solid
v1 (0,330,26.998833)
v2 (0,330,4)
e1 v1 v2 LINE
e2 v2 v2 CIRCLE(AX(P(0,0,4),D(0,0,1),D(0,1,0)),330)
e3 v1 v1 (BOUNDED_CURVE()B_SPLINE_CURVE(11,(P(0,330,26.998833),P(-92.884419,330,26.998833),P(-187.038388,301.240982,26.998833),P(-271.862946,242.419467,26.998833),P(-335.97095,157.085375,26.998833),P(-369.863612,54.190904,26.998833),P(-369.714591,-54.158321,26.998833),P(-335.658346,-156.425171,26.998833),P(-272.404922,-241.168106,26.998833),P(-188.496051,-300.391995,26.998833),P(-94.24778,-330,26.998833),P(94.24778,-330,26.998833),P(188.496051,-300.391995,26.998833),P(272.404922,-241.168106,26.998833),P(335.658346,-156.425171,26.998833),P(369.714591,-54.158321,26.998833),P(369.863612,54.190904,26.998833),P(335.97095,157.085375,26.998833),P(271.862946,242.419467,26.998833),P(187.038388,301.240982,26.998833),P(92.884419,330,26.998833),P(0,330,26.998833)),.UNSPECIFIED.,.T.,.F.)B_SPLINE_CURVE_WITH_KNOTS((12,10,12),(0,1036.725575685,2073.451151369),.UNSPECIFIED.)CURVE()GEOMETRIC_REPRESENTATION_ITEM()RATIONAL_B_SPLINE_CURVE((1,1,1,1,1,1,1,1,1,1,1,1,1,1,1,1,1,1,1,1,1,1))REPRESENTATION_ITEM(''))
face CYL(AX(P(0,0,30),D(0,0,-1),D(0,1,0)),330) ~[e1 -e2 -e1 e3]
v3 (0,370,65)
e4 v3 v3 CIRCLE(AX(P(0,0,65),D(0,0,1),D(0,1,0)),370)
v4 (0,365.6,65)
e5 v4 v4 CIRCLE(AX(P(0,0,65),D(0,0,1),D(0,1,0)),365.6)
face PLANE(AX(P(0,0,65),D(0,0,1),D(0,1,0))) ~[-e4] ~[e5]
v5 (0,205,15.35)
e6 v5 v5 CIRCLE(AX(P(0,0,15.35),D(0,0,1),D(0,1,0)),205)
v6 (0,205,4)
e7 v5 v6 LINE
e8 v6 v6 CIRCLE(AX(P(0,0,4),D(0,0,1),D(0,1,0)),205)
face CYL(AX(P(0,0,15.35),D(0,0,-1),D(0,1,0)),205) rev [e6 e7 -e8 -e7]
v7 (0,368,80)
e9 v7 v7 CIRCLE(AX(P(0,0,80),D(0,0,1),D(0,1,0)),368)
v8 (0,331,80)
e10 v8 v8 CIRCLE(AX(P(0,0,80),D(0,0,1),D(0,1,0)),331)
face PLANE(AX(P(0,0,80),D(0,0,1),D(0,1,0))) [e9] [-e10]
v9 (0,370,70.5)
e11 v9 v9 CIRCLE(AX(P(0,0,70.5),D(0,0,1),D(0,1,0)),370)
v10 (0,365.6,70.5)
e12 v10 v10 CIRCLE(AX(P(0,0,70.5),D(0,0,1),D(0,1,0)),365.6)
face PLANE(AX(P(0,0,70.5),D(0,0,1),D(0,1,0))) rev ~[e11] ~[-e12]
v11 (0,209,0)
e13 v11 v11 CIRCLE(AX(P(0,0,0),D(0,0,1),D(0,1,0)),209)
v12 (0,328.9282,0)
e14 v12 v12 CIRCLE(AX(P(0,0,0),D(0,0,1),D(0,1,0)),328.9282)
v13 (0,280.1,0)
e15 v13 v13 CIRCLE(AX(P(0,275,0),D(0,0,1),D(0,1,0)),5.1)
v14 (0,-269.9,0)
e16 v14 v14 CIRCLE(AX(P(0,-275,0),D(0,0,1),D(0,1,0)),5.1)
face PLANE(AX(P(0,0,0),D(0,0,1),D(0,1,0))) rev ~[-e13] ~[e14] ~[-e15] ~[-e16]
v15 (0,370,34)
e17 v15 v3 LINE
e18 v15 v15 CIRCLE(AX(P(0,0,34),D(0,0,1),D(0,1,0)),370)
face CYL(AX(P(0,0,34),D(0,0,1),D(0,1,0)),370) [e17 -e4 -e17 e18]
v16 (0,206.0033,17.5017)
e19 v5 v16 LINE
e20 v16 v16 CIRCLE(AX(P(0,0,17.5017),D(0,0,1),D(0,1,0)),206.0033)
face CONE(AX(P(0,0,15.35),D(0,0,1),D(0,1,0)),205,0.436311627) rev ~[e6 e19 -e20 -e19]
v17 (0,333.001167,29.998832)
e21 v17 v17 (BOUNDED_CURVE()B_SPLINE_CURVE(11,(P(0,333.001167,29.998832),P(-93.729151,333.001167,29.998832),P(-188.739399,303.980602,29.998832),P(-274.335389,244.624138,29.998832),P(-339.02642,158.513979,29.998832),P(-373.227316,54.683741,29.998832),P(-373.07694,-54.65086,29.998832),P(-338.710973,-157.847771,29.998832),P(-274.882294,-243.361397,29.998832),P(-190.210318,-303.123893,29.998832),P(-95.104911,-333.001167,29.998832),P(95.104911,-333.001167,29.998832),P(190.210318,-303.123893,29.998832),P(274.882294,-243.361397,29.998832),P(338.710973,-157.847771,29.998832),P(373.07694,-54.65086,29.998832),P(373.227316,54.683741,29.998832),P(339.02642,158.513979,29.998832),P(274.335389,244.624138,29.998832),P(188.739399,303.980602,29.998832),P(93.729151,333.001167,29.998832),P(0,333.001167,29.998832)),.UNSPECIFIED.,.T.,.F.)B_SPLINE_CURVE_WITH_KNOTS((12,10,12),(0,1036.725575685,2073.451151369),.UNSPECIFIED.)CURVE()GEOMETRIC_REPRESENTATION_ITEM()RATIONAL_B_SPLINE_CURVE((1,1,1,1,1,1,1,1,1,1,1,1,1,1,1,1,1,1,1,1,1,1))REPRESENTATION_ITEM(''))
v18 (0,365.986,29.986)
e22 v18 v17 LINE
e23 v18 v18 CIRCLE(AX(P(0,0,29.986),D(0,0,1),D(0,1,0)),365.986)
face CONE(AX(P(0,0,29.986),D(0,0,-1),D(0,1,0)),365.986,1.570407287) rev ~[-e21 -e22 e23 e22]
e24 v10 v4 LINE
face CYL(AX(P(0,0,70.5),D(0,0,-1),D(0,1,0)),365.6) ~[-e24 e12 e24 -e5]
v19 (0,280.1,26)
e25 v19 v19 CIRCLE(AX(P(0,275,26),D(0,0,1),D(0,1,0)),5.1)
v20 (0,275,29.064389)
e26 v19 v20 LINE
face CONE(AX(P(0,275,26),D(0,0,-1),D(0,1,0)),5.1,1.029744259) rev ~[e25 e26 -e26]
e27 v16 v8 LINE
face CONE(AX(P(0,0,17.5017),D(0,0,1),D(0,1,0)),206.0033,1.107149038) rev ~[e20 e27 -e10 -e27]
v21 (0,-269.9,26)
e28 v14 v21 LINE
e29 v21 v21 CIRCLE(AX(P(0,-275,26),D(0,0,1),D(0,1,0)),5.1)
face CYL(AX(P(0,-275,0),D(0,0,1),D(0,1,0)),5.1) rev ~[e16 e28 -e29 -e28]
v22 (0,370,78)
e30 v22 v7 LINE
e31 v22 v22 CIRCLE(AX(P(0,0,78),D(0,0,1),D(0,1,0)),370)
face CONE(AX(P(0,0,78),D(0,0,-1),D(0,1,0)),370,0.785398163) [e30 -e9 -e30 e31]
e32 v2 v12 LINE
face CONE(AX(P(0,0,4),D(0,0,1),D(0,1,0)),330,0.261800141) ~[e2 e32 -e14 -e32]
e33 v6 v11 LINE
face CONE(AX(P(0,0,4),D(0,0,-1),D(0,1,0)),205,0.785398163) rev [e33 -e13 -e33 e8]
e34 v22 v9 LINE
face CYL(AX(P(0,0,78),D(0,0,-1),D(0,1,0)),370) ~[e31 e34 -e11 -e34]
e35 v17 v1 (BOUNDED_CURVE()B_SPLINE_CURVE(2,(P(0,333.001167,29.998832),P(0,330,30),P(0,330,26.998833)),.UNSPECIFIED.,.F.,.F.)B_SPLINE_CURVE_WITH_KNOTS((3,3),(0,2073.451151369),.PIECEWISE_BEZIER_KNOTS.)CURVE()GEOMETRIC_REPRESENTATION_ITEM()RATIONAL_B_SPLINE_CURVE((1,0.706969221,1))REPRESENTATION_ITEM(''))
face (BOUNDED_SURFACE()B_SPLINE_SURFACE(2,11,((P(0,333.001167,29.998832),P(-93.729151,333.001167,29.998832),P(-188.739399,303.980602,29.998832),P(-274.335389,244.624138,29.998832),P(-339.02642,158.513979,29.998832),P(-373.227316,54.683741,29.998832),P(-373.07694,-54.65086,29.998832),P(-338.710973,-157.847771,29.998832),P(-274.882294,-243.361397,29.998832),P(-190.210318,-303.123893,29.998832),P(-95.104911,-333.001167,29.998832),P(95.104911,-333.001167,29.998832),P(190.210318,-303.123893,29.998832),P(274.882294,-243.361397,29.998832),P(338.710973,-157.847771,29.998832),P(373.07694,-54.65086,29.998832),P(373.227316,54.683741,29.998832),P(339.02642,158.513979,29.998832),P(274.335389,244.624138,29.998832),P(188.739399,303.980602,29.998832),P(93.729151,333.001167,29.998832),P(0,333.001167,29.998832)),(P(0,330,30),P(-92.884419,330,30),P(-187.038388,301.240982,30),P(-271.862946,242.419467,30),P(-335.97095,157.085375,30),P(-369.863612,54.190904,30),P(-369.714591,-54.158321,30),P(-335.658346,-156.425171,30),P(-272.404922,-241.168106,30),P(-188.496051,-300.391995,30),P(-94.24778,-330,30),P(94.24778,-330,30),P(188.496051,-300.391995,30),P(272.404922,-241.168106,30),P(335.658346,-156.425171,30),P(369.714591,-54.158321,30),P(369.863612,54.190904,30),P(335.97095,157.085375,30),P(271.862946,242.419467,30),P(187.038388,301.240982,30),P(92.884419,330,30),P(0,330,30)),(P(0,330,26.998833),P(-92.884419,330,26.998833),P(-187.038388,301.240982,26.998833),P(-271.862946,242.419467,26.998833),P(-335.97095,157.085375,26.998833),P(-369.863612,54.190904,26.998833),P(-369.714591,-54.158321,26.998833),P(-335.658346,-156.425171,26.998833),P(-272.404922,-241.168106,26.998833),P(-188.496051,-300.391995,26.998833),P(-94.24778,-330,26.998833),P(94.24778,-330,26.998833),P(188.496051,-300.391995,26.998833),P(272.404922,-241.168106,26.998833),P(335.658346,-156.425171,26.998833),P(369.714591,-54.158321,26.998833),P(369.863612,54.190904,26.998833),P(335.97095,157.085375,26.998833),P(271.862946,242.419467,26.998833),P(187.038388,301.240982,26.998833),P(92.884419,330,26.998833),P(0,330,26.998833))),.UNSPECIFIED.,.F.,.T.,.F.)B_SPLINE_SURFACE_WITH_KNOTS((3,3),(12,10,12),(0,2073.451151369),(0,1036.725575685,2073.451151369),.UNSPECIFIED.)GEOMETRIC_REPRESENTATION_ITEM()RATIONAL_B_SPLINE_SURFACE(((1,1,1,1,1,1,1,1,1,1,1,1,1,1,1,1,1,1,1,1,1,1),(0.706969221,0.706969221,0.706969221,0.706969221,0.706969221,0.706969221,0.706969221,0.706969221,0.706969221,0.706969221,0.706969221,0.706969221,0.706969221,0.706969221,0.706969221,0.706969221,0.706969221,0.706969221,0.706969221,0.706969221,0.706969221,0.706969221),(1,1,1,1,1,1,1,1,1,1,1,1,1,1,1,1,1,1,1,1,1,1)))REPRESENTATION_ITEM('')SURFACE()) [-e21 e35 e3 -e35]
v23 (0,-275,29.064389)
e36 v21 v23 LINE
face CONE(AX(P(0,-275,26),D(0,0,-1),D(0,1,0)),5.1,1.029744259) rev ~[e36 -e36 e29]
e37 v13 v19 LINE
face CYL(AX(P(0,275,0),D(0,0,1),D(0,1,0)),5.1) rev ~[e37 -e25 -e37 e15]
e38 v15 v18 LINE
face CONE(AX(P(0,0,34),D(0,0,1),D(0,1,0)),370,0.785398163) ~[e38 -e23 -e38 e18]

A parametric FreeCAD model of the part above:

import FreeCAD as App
import Part
import Sketcher
Q = App.Units.Quantity


def edges_at(feature, points):
    """Names of the edges that pass closest to the given points."""
    edges = feature.Shape.Edges
    near = lambda p: min(range(len(edges)), key=lambda i: edges[i].distToShape(Part.Vertex(*p))[0])
    return sorted({f"Edge{near(p) + 1}" for p in points})


def add_polygon(sketch, points):
    """Adds a closed chain of lines whose ends are joined by coincident constraints."""
    first, n = sketch.GeometryCount, len(points)
    for a, b in zip(points, points[1:] + points[:1]):
        sketch.addGeometry(Part.LineSegment(App.Vector(*a, 0), App.Vector(*b, 0)), False)
    for i in range(n):
        sketch.addConstraint(Sketcher.Constraint("Coincident", first + i, 2, first + (i + 1) % n, 1))

doc = App.newDocument("Part")
body = doc.addObject("PartDesign::Body", "Body")

# Sketch on YZ plane
sketch1 = body.newObject("Sketcher::SketchObject", "Sketch")
sketch1.AttachmentSupport = (doc.getObject("YZ_Plane"), [""])
sketch1.MapMode = "FlatFace"
add_polygon(sketch1, [(365.6, 70.5), (370, 70.5), (370, 78), (368, 80), (331, 80), (206, 17.5), (205, 15.3), (205, 4), (209, 0), (328.9, 0), (330, 4), (330, 30), (366, 30), (370, 34), (370, 65), (365.6, 65)])  # lines 0-15
sketch1.addConstraint(Sketcher.Constraint("Horizontal", 0))
sketch1.addConstraint(Sketcher.Constraint("Vertical", 1))
sketch1.addConstraint(Sketcher.Constraint("Horizontal", 3))
sketch1.addConstraint(Sketcher.Constraint("Vertical", 6))
sketch1.addConstraint(Sketcher.Constraint("Horizontal", 8))
sketch1.addConstraint(Sketcher.Constraint("Vertical", 10))
sketch1.addConstraint(Sketcher.Constraint("Vertical", 13))
sketch1.addConstraint(Sketcher.Constraint("Horizontal", 14))
sketch1.addConstraint(Sketcher.Constraint("Vertical", 15))
sketch1.addConstraint(Sketcher.Constraint("PointOnObject", 7, 2, -1))
sketch1.addConstraint(Sketcher.Constraint("Parallel", 2, 7))
sketch1.addConstraint(Sketcher.Constraint("Perpendicular", 7, 12))
sketch1.addConstraint(Sketcher.Constraint("Horizontal", 6, 2, 9, 2))
sketch1.addConstraint(Sketcher.Constraint("Vertical", 1, 2, 12, 2))
sketch1.addConstraint(Sketcher.Constraint("DistanceX", 0, 1, 0, 2, Q("4.4 mm")))
sketch1.addConstraint(Sketcher.Constraint("DistanceY", 15, 1, 15, 2, Q("5.5 mm")))
sketch1.addConstraint(Sketcher.Constraint("DistanceX", 3, 2, 3, 1, Q("37 mm")))
sketch1.addConstraint(Sketcher.Constraint("DistanceY", 10, 1, 10, 2, Q("26 mm")))
sketch1.addConstraint(Sketcher.Constraint("DistanceY", 13, 1, 13, 2, Q("31 mm")))
sketch1.addConstraint(Sketcher.Constraint("Angle", 2, Q("135 deg")))
sketch1.addConstraint(Sketcher.Constraint("Angle", 5, Q("-114.9988 deg")))
sketch1.addConstraint(Sketcher.Constraint("Angle", 9, Q("75 deg")))
sketch1.addConstraint(Sketcher.Constraint("DistanceY", 1, 1, 1, 2, Q("7.5 mm")))
sketch1.addConstraint(Sketcher.Constraint("DistanceX", -1, 1, 0, 2, Q("370 mm")))
sketch1.addConstraint(Sketcher.Constraint("DistanceY", -1, 1, 1, 2, Q("78 mm")))
sketch1.addConstraint(Sketcher.Constraint("DistanceX", -1, 1, 2, 2, Q("368 mm")))
sketch1.addConstraint(Sketcher.Constraint("DistanceX", -1, 1, 5, 2, Q("205 mm")))
sketch1.addConstraint(Sketcher.Constraint("DistanceY", -1, 1, 6, 2, Q("4 mm")))
sketch1.addConstraint(Sketcher.Constraint("DistanceX", -1, 1, 9, 2, Q("330 mm")))
sketch1.addConstraint(Sketcher.Constraint("DistanceY", 6, 2, 6, 1, Q("11.35 mm")))
sketch1.addConstraint(Sketcher.Constraint("Distance", 5, Q("2.374 mm")))
sketch1.addConstraint(Sketcher.Constraint("Distance", 11, Q("35.986 mm")))
revolution = body.newObject("PartDesign::Revolution", "Revolution")
revolution.Profile = sketch1
revolution.ReferenceAxis = (sketch1, ["V_Axis"])
revolution.Angle = 360

# Sketch on XY plane
sketch2 = body.newObject("Sketcher::SketchObject", "Sketch001")
sketch2.AttachmentSupport = (doc.getObject("XY_Plane"), [""])
sketch2.MapMode = "FlatFace"
sketch2.addGeometry(Part.Circle(App.Vector(0, 275, 0), App.Vector(0, 0, 1), 5), False)
sketch2.addGeometry(Part.Circle(App.Vector(0, -275, 0), App.Vector(0, 0, 1), 5), False)
sketch2.addConstraint(Sketcher.Constraint("Equal", 0, 1))
sketch2.addConstraint(Sketcher.Constraint("Symmetric", 0, 3, 1, 3, -1, 1))
sketch2.addConstraint(Sketcher.Constraint("PointOnObject", 0, 3, -2))
sketch2.addConstraint(Sketcher.Constraint("Diameter", 0, Q("10.2 mm")))
sketch2.addConstraint(Sketcher.Constraint("DistanceY", -1, 1, 0, 3, Q("275 mm")))
doc.recompute()
hole = body.newObject("PartDesign::Hole", "Hole")
hole.Profile = sketch2
hole.ThreadType = "None"
hole.Diameter = 10.2
hole.DepthType = "Dimension"
hole.Depth = 26
hole.DrillPoint = "Angled"
hole.DrillPointAngle = 118
hole.Reversed = True
doc.recompute()

fillet = body.newObject("PartDesign::Fillet", "Fillet")
fillet.Base = (hole, edges_at(hole, [(-307.668, 119.333, 30)]))
fillet.Radius = 3

doc.recompute()
